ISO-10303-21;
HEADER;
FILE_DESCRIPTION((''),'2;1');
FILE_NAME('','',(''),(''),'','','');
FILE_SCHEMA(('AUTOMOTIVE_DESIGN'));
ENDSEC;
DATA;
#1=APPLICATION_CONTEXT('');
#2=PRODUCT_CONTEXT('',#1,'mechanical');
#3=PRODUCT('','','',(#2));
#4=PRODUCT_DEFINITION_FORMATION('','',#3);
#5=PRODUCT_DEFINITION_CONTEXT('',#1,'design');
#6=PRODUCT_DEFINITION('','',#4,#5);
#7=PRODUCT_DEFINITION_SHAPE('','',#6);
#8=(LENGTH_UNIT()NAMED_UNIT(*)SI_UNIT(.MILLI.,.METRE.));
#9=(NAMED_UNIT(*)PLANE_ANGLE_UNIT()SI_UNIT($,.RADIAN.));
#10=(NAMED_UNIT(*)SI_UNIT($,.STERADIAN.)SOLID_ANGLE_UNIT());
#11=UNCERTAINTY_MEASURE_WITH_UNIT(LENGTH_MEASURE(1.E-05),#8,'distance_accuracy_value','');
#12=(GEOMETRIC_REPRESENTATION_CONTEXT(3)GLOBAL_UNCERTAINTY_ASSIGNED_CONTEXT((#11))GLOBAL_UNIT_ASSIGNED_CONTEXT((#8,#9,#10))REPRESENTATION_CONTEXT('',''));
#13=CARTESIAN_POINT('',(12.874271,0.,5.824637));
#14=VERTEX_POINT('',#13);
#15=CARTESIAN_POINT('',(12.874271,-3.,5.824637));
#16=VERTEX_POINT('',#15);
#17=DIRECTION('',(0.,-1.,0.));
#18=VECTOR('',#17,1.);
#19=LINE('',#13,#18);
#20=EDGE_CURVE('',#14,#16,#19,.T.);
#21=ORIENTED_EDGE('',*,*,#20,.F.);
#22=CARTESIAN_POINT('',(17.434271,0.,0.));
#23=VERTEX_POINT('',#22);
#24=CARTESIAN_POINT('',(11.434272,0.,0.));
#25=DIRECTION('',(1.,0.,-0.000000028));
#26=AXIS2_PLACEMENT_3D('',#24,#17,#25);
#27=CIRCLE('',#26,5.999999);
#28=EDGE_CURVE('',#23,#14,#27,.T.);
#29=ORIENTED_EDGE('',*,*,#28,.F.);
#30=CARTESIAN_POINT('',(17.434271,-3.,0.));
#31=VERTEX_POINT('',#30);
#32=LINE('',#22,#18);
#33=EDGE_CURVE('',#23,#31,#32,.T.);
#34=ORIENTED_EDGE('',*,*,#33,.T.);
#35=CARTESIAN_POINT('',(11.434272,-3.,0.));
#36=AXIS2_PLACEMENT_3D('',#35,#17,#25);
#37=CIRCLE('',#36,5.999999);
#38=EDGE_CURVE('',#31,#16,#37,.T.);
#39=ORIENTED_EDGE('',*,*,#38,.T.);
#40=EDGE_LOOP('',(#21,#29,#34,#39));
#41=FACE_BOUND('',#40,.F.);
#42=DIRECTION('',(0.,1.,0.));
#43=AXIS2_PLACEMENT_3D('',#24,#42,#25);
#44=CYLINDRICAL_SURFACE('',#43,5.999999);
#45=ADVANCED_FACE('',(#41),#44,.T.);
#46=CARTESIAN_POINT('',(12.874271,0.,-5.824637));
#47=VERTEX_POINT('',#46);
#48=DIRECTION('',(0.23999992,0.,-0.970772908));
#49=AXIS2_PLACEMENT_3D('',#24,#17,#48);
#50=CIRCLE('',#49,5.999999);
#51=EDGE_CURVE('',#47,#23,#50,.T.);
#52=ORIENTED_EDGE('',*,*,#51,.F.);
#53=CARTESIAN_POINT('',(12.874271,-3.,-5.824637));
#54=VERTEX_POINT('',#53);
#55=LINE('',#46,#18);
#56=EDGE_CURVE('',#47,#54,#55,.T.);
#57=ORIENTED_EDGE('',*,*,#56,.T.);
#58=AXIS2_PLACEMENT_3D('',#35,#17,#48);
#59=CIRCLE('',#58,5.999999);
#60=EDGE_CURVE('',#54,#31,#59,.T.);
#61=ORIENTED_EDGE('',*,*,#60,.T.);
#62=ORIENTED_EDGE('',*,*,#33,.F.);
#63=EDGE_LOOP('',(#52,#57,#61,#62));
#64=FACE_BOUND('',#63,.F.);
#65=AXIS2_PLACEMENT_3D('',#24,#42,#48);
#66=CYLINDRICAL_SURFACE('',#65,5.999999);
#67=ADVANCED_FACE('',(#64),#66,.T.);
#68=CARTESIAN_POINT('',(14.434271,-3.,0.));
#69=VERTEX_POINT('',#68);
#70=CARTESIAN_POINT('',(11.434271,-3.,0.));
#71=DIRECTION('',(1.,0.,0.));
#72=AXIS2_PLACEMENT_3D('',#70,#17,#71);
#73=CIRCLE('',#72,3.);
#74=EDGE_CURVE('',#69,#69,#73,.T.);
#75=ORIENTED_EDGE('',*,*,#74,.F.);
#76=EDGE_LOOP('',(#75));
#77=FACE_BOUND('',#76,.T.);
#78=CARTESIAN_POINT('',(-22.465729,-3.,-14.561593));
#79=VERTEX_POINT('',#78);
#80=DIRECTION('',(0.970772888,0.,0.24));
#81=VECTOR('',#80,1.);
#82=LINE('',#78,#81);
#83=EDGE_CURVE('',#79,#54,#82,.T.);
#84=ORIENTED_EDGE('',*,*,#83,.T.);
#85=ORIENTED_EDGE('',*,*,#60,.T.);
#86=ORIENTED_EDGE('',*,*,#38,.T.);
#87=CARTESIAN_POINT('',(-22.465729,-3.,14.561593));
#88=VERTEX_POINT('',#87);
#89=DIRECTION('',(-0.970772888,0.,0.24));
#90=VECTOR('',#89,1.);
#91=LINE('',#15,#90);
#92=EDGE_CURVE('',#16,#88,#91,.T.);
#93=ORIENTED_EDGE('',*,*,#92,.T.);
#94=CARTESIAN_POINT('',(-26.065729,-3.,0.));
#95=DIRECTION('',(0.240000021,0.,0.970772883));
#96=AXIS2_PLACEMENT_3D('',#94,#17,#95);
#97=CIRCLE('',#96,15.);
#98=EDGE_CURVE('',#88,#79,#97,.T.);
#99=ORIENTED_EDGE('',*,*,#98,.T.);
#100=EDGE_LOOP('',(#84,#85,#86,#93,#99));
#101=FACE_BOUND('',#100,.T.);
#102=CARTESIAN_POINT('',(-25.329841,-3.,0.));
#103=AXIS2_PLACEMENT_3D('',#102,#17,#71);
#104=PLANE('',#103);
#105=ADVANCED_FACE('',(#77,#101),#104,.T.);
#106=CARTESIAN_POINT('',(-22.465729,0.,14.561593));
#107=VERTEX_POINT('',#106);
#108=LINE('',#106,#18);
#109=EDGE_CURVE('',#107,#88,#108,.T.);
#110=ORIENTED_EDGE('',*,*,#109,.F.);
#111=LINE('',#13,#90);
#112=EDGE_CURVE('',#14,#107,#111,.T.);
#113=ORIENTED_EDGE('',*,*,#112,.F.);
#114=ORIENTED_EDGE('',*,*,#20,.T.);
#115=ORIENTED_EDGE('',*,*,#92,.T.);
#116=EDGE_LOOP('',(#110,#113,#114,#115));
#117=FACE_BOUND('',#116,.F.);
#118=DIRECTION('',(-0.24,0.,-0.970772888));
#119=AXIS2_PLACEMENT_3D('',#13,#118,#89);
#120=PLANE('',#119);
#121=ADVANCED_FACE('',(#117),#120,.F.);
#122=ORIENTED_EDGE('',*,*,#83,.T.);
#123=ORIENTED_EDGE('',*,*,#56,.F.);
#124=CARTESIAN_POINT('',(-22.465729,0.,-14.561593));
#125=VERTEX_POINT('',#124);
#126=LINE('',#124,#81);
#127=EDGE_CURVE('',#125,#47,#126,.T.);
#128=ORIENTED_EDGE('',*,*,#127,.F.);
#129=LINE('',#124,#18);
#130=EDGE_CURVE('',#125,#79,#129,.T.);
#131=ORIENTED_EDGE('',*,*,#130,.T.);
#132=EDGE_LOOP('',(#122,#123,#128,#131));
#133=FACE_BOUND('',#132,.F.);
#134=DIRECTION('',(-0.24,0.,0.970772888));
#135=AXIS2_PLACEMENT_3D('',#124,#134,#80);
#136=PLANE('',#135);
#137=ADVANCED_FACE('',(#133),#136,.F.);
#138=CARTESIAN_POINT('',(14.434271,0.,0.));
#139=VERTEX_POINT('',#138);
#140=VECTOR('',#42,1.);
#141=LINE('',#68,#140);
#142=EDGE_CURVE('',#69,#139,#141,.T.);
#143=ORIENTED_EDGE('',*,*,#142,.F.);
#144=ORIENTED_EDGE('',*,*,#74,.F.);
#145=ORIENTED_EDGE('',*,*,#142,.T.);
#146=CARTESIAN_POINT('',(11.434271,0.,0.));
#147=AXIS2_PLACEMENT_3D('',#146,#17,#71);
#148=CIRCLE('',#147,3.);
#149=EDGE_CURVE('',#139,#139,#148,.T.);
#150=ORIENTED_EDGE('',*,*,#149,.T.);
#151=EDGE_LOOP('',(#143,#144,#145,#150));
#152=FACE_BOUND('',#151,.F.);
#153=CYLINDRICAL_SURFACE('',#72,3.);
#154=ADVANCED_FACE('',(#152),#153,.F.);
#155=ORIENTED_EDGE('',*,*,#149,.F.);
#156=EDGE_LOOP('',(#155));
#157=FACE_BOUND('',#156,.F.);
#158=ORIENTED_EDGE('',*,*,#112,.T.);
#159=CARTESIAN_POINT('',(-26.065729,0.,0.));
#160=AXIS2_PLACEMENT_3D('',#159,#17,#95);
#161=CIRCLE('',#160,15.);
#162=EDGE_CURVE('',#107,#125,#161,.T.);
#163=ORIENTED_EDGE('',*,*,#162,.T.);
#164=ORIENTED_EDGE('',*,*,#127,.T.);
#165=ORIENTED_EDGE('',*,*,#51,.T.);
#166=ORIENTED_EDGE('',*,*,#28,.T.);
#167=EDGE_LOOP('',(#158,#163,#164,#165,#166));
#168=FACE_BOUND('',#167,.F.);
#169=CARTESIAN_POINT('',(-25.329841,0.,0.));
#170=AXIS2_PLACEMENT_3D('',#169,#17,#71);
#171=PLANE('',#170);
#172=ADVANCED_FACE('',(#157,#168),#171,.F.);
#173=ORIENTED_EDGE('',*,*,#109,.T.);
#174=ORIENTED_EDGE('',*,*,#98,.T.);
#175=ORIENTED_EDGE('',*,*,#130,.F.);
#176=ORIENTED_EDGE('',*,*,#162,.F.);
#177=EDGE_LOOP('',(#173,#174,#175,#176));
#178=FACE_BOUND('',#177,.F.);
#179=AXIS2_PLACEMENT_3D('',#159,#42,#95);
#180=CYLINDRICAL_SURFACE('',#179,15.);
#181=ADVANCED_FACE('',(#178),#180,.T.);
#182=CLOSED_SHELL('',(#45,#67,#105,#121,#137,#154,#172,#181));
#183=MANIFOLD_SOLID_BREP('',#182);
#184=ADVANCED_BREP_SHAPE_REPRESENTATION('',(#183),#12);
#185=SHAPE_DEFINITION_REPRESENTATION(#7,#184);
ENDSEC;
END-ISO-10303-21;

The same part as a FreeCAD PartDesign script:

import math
import FreeCAD as App
import Part
import Sketcher

V = App.Vector
Q = App.Units.Quantity

doc = App.newDocument("Part")
body = doc.addObject("PartDesign::Body", "Body")

# Sketch on XZ plane
sketch1 = body.newObject("Sketcher::SketchObject", "Sketch")
sketch1.AttachmentSupport = (doc.getObject("XZ_Plane"), [""])
sketch1.MapMode = "FlatFace"
sketch1.addGeometry(Part.ArcOfCircle(Part.Circle(V(-26, 0, 0), V(0, 0, 1), 15), math.radians(76), math.radians(284)), False)
sketch1.addGeometry(Part.LineSegment(V(-22, -15, 0), V(13, -6, 0)), False)
sketch1.addGeometry(Part.ArcOfCircle(Part.Circle(V(11, 0, 0), V(0, 0, 1), 6), math.radians(-76), math.radians(0)), False)
sketch1.addGeometry(Part.ArcOfCircle(Part.Circle(V(11, 0, 0), V(0, 0, 1), 6), math.radians(0), math.radians(76)), False)
sketch1.addGeometry(Part.LineSegment(V(13, 6, 0), V(-22, 15, 0)), False)
sketch1.addConstraint(Sketcher.Constraint("Tangent", 0, 2, 1, 1))
sketch1.addConstraint(Sketcher.Constraint("Tangent", 1, 2, 2, 1))
sketch1.addConstraint(Sketcher.Constraint("Tangent", 2, 2, 3, 1))
sketch1.addConstraint(Sketcher.Constraint("Tangent", 3, 2, 4, 1))
sketch1.addConstraint(Sketcher.Constraint("Tangent", 4, 2, 0, 1))
sketch1.addConstraint(Sketcher.Constraint("Equal", 2, 3))
sketch1.addConstraint(Sketcher.Constraint("Symmetric", 1, 2, 3, 2, -1))
sketch1.addConstraint(Sketcher.Constraint("PointOnObject", 2, 2, -1))
sketch1.addConstraint(Sketcher.Constraint("Radius", 0, Q("15 mm")))
sketch1.addConstraint(Sketcher.Constraint("Radius", 2, Q("5.999999 mm")))
sketch1.addConstraint(Sketcher.Constraint("DistanceX", 0, 3, 2, 3, Q("37.500001 mm")))
sketch1.addConstraint(Sketcher.Constraint("DistanceX", 0, 3, -1, 1, Q("26.065729 mm")))
pad1 = body.newObject("PartDesign::Pad", "Pad")
pad1.Profile = sketch1
pad1.Length = 3

# Sketch on XZ plane
sketch2 = body.newObject("Sketcher::SketchObject", "Sketch001")
sketch2.AttachmentSupport = (doc.getObject("XZ_Plane"), [""])
sketch2.MapMode = "FlatFace"
sketch2.AttachmentOffset = App.Placement(V(0, 0, 3), App.Rotation())
sketch2.addGeometry(Part.Circle(V(11.4, 0, 0), V(0, 0, 1), 3), False)
sketch2.addConstraint(Sketcher.Constraint("PointOnObject", 0, 3, -1))
sketch2.addConstraint(Sketcher.Constraint("Diameter", 0, Q("6 mm")))
sketch2.addConstraint(Sketcher.Constraint("DistanceX", -1, 1, 0, 3, Q("11.434271 mm")))
pocket1 = body.newObject("PartDesign::Pocket", "Pocket")
pocket1.Profile = sketch2
pocket1.Length = 25

doc.recompute()
